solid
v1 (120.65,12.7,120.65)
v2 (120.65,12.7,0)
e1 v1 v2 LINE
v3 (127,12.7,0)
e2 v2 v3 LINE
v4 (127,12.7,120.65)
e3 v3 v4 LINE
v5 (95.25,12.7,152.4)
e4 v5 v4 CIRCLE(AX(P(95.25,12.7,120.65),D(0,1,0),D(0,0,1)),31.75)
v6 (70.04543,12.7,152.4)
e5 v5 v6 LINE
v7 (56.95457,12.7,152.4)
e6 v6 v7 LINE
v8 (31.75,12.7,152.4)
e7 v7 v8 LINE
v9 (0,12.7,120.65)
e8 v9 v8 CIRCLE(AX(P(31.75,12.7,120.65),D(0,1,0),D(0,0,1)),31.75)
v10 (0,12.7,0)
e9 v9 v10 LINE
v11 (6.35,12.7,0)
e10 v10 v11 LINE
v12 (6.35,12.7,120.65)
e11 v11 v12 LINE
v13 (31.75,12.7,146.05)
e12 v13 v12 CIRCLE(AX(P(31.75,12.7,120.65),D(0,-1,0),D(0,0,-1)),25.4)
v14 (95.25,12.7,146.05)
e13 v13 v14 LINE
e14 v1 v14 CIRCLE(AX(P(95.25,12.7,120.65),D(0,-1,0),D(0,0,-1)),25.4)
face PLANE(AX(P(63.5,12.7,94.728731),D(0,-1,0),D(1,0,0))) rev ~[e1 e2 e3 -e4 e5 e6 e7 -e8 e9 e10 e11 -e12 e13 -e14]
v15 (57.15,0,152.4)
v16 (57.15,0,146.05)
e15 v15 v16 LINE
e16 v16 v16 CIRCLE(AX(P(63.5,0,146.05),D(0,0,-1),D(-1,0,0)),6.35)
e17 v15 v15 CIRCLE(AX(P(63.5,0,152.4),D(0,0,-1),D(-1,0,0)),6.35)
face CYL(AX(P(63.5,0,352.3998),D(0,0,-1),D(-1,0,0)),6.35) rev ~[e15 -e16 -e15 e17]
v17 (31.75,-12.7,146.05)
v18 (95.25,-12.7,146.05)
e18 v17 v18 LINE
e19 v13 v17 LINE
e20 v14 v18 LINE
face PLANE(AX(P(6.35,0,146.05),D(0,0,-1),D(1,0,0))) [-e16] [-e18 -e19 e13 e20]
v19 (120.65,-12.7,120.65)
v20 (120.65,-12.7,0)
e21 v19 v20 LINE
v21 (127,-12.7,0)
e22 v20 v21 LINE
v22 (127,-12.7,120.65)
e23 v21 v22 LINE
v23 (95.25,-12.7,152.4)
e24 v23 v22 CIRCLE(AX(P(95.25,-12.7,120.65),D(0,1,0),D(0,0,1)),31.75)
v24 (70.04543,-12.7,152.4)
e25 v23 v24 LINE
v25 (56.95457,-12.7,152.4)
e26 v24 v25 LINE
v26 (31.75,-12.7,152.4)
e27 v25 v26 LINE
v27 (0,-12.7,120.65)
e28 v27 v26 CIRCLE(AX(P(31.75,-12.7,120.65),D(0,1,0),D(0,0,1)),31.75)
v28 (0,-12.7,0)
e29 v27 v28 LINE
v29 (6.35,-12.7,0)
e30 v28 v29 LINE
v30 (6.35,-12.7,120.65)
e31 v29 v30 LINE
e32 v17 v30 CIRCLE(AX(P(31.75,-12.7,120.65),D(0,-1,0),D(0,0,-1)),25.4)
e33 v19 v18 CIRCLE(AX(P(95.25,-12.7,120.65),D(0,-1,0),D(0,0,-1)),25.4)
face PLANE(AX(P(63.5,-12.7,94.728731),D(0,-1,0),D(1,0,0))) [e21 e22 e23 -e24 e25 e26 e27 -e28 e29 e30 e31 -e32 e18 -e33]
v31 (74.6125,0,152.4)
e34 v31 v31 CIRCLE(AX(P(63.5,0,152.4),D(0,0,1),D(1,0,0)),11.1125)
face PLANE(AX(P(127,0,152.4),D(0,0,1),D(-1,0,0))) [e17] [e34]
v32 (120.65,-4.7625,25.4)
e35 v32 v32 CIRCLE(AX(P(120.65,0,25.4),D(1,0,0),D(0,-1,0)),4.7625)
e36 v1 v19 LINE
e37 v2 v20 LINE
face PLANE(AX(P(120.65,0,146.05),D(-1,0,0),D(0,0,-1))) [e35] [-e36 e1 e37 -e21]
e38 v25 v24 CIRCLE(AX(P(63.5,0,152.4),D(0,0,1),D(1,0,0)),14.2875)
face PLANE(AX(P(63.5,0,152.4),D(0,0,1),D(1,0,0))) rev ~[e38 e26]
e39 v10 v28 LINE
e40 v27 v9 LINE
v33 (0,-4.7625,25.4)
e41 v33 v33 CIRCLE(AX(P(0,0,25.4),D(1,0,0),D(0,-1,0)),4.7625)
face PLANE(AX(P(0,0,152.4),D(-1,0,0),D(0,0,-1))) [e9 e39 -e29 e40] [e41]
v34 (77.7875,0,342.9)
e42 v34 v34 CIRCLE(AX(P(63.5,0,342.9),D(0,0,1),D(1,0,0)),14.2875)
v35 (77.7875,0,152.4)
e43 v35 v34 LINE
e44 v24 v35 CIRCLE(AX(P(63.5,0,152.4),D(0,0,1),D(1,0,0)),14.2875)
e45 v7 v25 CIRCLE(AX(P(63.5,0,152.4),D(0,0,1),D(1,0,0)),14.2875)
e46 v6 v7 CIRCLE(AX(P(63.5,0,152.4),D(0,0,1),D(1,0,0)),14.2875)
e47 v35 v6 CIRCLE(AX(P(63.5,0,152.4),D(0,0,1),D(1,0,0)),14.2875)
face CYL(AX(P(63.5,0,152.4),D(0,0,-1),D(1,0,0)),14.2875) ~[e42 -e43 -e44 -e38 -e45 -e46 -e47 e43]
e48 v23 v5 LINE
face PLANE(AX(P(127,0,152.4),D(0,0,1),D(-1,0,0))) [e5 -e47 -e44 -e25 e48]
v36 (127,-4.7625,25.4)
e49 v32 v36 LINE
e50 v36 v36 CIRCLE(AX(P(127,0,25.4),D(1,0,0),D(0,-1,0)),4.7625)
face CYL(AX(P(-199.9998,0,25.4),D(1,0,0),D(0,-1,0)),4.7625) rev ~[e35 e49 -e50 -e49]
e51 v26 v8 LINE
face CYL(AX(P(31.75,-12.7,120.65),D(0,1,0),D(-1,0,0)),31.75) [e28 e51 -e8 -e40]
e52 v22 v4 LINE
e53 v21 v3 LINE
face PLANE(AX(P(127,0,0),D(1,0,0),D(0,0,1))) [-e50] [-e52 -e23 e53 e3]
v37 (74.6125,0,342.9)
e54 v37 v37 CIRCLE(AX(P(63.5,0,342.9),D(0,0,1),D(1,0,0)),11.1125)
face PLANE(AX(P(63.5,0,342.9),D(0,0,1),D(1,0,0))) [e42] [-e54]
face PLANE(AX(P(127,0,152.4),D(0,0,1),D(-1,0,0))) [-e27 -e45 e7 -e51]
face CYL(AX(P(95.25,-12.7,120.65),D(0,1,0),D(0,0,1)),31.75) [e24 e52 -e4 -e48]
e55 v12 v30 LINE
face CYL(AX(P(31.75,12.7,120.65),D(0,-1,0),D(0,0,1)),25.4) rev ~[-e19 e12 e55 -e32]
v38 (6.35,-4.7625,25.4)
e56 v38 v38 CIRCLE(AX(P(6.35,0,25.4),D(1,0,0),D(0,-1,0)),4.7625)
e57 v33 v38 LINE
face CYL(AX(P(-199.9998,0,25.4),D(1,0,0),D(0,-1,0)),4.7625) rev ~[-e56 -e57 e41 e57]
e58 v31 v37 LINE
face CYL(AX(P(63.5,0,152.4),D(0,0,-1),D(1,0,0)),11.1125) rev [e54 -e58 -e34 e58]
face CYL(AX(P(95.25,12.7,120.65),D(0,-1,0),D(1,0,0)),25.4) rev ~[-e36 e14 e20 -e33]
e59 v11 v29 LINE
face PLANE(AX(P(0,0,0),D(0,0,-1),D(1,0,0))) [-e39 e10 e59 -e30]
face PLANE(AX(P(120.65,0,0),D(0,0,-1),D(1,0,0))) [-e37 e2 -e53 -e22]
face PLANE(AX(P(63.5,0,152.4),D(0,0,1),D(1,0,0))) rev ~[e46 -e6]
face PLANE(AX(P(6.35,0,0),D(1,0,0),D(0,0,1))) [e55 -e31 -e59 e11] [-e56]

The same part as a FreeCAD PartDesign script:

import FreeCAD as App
import Part
import Sketcher
Q = App.Units.Quantity


def edges_at(feature, points):
    """Names of the edges that pass closest to the given points."""
    edges = feature.Shape.Edges
    near = lambda p: min(range(len(edges)), key=lambda i: edges[i].distToShape(Part.Vertex(*p))[0])
    return sorted({f"Edge{near(p) + 1}" for p in points})

doc = App.newDocument("Part")
body = doc.addObject("PartDesign::Body", "Body")

# Sketch on XZ plane
sketch1 = body.newObject("Sketcher::SketchObject", "Sketch")
sketch1.AttachmentSupport = (doc.getObject("XZ_Plane"), [""])
sketch1.MapMode = "FlatFace"
sketch1.addGeometry(Part.LineSegment(App.Vector(0, 152, 0), App.Vector(0, 0, 0)), False)
sketch1.addGeometry(Part.LineSegment(App.Vector(0, 0, 0), App.Vector(6, 0, 0)), False)
sketch1.addGeometry(Part.LineSegment(App.Vector(6, 0, 0), App.Vector(6, 146, 0)), False)
sketch1.addGeometry(Part.LineSegment(App.Vector(6, 146, 0), App.Vector(121, 146, 0)), False)
sketch1.addGeometry(Part.LineSegment(App.Vector(121, 146, 0), App.Vector(121, 0, 0)), False)
sketch1.addGeometry(Part.LineSegment(App.Vector(121, 0, 0), App.Vector(127, 0, 0)), False)
sketch1.addGeometry(Part.LineSegment(App.Vector(127, 0, 0), App.Vector(127, 152, 0)), False)
sketch1.addGeometry(Part.LineSegment(App.Vector(127, 152, 0), App.Vector(0, 152, 0)), False)
sketch1.addConstraint(Sketcher.Constraint("Coincident", 0, 2, 1, 1))
sketch1.addConstraint(Sketcher.Constraint("Coincident", 1, 2, 2, 1))
sketch1.addConstraint(Sketcher.Constraint("Coincident", 2, 2, 3, 1))
sketch1.addConstraint(Sketcher.Constraint("Coincident", 3, 2, 4, 1))
sketch1.addConstraint(Sketcher.Constraint("Coincident", 4, 2, 5, 1))
sketch1.addConstraint(Sketcher.Constraint("Coincident", 5, 2, 6, 1))
sketch1.addConstraint(Sketcher.Constraint("Coincident", 6, 2, 7, 1))
sketch1.addConstraint(Sketcher.Constraint("Coincident", 7, 2, 0, 1))
sketch1.addConstraint(Sketcher.Constraint("Vertical", 0))
sketch1.addConstraint(Sketcher.Constraint("Horizontal", 1))
sketch1.addConstraint(Sketcher.Constraint("Vertical", 2))
sketch1.addConstraint(Sketcher.Constraint("Horizontal", 3))
sketch1.addConstraint(Sketcher.Constraint("Vertical", 4))
sketch1.addConstraint(Sketcher.Constraint("Horizontal", 5))
sketch1.addConstraint(Sketcher.Constraint("Vertical", 6))
sketch1.addConstraint(Sketcher.Constraint("Horizontal", 7))
sketch1.addConstraint(Sketcher.Constraint("Coincident", 0, 2, -1, 1))
sketch1.addConstraint(Sketcher.Constraint("PointOnObject", 4, 2, -1))
sketch1.addConstraint(Sketcher.Constraint("Equal", 1, 5))
sketch1.addConstraint(Sketcher.Constraint("DistanceX", 7, 2, 7, 1, Q("5 in")))
sketch1.addConstraint(Sketcher.Constraint("DistanceY", 0, 2, 0, 1, Q("6 in")))
sketch1.addConstraint(Sketcher.Constraint("DistanceX", 3, 1, 3, 2, Q("4.5 in")))
sketch1.addConstraint(Sketcher.Constraint("DistanceY", 2, 1, 2, 2, Q("5.75 in")))
pad1 = body.newObject("PartDesign::Pad", "Pad")
pad1.Profile = sketch1
pad1.Length = Q("1 in")
pad1.Midplane = True
doc.recompute()

fillet = body.newObject("PartDesign::Fillet", "Fillet")
fillet.Base = (pad1, edges_at(pad1, [(6.35, 0, 146.05), (120.65, 0, 146.05)]))
fillet.Radius = Q("1 in")
doc.recompute()

fillet2 = body.newObject("PartDesign::Fillet", "Fillet001")
fillet2.Base = (fillet, edges_at(fillet, [(127, 0, 152.4), (0, 0, 152.4)]))
fillet2.Radius = Q("1.25 in")

# Sketch on YZ plane
sketch2 = body.newObject("Sketcher::SketchObject", "Sketch001")
sketch2.AttachmentSupport = (doc.getObject("YZ_Plane"), [""])
sketch2.MapMode = "FlatFace"
sketch2.addGeometry(Part.Circle(App.Vector(0, 25.4, 0), App.Vector(0, 0, 1), 4.8), False)
sketch2.addConstraint(Sketcher.Constraint("PointOnObject", 0, 3, -2))
sketch2.addConstraint(Sketcher.Constraint("Diameter", 0, Q("0.375 in")))
sketch2.addConstraint(Sketcher.Constraint("DistanceY", -1, 1, 0, 3, Q("1 in")))
doc.recompute()
hole = body.newObject("PartDesign::Hole", "Hole")
hole.Profile = sketch2
hole.ThreadType = "None"
hole.Diameter = Q("0.375 in")
hole.DepthType = "ThroughAll"
hole.Reversed = True

# Sketch on XY plane
sketch3 = body.newObject("Sketcher::SketchObject", "Sketch002")
sketch3.AttachmentSupport = (doc.getObject("XY_Plane"), [""])
sketch3.MapMode = "FlatFace"
sketch3.AttachmentOffset = App.Placement(App.Vector(0, 0, 6 * 25.4), App.Rotation())
sketch3.addGeometry(Part.Circle(App.Vector(64, 0, 0), App.Vector(0, 0, 1), 6), False)
sketch3.addConstraint(Sketcher.Constraint("PointOnObject", 0, 3, -1))
sketch3.addConstraint(Sketcher.Constraint("Diameter", 0, Q("0.5 in")))
sketch3.addConstraint(Sketcher.Constraint("DistanceX", -1, 1, 0, 3, Q("2.5 in")))
doc.recompute()
hole2 = body.newObject("PartDesign::Hole", "Hole001")
hole2.Profile = sketch3
hole2.ThreadType = "None"
hole2.Diameter = Q("0.5 in")
hole2.DepthType = "ThroughAll"

# Sketch on XY plane
sketch4 = body.newObject("Sketcher::SketchObject", "Sketch003")
sketch4.AttachmentSupport = (doc.getObject("XY_Plane"), [""])
sketch4.MapMode = "FlatFace"
sketch4.AttachmentOffset = App.Placement(App.Vector(0, 0, 6 * 25.4), App.Rotation())
sketch4.addGeometry(Part.Circle(App.Vector(64, 0, 0), App.Vector(0, 0, 1), 14), False)
sketch4.addGeometry(Part.Circle(App.Vector(64, 0, 0), App.Vector(0, 0, 1), 11), False)
sketch4.addConstraint(Sketcher.Constraint("Coincident", 1, 3, 0, 3))
sketch4.addConstraint(Sketcher.Constraint("PointOnObject", 0, 3, -1))
sketch4.addConstraint(Sketcher.Constraint("Diameter", 0, Q("1.125 in")))
sketch4.addConstraint(Sketcher.Constraint("Diameter", 1, Q("0.875 in")))
sketch4.addConstraint(Sketcher.Constraint("DistanceX", -1, 1, 0, 3, Q("2.5 in")))
pad2 = body.newObject("PartDesign::Pad", "Pad001")
pad2.Profile = sketch4
pad2.Length = Q("7.5 in")

doc.recompute()
